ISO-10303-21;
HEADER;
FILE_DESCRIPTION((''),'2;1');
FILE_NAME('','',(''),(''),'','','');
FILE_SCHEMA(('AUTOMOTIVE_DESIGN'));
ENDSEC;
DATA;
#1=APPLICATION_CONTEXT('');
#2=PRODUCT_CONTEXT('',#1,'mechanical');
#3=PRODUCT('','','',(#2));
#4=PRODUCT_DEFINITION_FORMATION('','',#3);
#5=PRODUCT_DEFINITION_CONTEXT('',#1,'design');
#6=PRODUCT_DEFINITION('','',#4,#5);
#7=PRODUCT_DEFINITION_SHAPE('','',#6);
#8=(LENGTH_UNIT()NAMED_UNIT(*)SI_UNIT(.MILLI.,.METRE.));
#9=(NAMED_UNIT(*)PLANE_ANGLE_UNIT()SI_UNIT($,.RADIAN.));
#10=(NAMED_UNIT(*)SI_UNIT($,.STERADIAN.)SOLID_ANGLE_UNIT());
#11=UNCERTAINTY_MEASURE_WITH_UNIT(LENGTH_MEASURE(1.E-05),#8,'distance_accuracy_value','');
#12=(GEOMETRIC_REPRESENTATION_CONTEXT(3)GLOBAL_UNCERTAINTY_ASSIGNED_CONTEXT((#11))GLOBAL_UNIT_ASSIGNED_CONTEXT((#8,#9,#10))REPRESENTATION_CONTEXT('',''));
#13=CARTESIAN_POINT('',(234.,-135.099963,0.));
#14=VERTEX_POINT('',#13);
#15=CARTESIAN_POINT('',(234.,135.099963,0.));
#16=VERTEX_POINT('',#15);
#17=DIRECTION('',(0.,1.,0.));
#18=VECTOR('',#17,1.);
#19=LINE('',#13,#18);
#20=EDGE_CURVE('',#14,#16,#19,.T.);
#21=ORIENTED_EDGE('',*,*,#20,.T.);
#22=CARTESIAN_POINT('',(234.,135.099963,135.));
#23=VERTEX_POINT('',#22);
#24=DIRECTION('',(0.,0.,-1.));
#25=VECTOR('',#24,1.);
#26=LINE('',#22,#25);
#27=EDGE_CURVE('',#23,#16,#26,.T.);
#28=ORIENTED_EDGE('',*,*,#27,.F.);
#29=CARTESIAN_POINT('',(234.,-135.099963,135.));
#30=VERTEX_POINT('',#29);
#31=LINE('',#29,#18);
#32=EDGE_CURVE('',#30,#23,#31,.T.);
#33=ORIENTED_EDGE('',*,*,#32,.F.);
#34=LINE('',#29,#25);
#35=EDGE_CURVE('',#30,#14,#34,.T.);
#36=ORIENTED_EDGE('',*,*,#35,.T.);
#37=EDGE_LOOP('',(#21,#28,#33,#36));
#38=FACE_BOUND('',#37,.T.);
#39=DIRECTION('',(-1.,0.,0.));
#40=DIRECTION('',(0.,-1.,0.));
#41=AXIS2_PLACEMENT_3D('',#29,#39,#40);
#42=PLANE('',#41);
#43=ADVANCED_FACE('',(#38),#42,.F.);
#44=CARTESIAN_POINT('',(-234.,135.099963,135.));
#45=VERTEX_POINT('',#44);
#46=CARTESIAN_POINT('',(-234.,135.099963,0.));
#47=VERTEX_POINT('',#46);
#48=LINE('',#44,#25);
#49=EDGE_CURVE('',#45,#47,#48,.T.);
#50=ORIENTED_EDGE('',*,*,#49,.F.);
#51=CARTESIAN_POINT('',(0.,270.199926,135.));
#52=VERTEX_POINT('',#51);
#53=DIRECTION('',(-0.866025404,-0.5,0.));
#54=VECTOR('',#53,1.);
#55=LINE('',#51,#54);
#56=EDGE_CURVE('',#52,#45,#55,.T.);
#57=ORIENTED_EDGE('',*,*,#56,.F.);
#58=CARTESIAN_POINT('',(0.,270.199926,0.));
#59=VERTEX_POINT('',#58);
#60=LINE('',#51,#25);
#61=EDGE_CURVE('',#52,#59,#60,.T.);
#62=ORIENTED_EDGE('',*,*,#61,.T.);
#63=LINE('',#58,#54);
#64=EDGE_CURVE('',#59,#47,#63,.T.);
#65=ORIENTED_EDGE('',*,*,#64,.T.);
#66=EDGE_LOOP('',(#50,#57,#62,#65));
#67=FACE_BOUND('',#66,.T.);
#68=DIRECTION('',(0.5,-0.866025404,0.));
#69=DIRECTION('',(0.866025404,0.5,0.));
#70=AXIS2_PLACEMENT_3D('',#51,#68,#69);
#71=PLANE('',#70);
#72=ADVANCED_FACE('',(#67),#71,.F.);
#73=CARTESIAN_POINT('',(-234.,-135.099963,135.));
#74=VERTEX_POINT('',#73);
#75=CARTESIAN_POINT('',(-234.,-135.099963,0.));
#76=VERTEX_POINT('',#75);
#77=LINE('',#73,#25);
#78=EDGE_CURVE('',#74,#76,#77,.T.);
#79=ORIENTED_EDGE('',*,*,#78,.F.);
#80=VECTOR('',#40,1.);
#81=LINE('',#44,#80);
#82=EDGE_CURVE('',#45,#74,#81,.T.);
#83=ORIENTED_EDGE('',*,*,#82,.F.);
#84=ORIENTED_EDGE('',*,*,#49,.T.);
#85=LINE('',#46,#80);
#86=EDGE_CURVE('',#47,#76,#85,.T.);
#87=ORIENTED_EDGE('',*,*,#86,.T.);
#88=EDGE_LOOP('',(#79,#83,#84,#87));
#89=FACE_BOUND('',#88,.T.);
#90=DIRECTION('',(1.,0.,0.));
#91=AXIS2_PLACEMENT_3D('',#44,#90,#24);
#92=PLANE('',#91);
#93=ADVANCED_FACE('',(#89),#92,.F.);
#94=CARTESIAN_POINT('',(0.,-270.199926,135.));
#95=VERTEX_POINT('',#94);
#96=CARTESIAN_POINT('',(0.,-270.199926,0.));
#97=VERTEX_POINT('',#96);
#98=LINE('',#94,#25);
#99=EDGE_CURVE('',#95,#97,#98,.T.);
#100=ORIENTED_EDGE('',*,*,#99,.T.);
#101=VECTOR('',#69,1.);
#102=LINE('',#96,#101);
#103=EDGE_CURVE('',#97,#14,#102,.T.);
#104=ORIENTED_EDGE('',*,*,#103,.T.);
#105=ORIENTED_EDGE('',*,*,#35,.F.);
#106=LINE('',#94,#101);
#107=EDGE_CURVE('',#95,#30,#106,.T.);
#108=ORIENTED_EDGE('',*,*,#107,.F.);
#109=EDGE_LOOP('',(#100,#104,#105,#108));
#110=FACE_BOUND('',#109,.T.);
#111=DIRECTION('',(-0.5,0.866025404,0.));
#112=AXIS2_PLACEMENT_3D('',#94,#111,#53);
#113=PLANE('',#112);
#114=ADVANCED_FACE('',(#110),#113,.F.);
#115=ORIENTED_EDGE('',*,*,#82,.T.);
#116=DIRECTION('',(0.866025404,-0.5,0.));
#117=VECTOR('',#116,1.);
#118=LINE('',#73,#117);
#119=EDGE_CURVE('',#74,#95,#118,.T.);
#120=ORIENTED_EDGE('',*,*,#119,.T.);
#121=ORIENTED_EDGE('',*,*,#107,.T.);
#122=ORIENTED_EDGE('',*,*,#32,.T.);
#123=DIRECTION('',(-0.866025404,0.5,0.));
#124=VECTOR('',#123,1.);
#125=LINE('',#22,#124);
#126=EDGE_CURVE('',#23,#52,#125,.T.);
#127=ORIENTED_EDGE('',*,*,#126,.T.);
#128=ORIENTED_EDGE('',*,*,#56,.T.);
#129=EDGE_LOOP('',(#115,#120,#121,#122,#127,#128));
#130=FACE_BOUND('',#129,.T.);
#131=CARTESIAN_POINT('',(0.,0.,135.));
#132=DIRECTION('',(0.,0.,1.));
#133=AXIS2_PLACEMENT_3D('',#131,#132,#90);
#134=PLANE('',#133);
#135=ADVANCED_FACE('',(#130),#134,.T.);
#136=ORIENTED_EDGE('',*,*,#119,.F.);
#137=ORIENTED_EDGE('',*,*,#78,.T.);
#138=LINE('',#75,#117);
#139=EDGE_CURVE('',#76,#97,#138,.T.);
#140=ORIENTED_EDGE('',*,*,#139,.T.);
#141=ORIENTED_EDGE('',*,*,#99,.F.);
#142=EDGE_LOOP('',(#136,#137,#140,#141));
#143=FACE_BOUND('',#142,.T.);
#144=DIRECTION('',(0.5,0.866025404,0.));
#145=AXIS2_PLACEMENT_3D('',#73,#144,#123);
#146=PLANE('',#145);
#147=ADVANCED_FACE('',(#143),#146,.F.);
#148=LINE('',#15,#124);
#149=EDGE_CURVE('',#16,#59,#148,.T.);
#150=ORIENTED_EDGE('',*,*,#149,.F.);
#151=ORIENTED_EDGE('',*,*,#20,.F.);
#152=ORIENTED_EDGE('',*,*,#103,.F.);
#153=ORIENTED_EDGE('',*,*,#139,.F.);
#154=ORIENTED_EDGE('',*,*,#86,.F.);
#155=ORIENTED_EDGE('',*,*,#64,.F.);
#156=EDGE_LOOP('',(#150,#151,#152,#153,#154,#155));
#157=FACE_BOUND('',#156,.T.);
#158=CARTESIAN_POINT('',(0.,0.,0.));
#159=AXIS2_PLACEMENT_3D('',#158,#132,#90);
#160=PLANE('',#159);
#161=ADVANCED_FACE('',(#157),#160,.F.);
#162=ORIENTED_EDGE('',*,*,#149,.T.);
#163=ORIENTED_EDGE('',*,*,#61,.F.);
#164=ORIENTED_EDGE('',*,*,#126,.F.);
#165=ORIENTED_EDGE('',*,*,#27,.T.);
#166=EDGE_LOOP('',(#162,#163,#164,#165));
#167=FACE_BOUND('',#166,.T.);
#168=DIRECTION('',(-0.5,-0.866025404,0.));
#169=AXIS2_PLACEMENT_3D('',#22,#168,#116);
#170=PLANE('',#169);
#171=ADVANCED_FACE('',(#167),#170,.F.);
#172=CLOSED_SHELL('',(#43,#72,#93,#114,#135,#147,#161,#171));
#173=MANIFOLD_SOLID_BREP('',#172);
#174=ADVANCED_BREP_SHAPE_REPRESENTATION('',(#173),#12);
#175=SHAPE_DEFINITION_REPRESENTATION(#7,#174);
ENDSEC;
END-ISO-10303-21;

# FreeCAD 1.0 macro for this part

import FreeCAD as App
import Part
import Sketcher
Q = App.Units.Quantity


def add_polygon(sketch, points):
    """Adds a closed chain of lines whose ends are joined by coincident constraints."""
    first, n = sketch.GeometryCount, len(points)
    for a, b in zip(points, points[1:] + points[:1]):
        sketch.addGeometry(Part.LineSegment(App.Vector(*a, 0), App.Vector(*b, 0)), False)
    for i in range(n):
        sketch.addConstraint(Sketcher.Constraint("Coincident", first + i, 2, first + (i + 1) % n, 1))

doc = App.newDocument("Part")
body = doc.addObject("PartDesign::Body", "Body")

# Sketch on XY plane
sketch1 = doc.addObject("Sketcher::SketchObject", "Sketch")
body.addObject(sketch1)
sketch1.AttachmentSupport = (doc.XY_Plane, [""])
sketch1.MapMode = "FlatFace"
add_polygon(sketch1, [(0, -270), (234, -135), (234, 135), (0, 270), (-234, 135), (-234, -135)])  # lines 0-5
sketch1.addConstraint(Sketcher.Constraint("Vertical", 1))
sketch1.addConstraint(Sketcher.Constraint("Vertical", 4))
sketch1.addConstraint(Sketcher.Constraint("Symmetric", 0, 2, 3, 2, -1, 1))
sketch1.addConstraint(Sketcher.Constraint("Symmetric", 2, 2, 5, 2, -1, 1))
sketch1.addConstraint(Sketcher.Constraint("PointOnObject", 2, 2, -2))
sketch1.addConstraint(Sketcher.Constraint("Parallel", 2, 5))
sketch1.addConstraint(Sketcher.Constraint("Horizontal", 1, 2, 3, 2))
sketch1.addConstraint(Sketcher.Constraint("Angle", 0, Q("30 deg")))
sketch1.addConstraint(Sketcher.Constraint("DistanceX", -1, 1, 0, 2, Q("234 mm")))
sketch1.addConstraint(Sketcher.Constraint("DistanceY", 1, 1, 1, 2, Q("270.199926 mm")))
pad1 = doc.addObject("PartDesign::Pad", "Pad")
body.addObject(pad1)
pad1.Profile = sketch1
pad1.Length = 135

doc.recompute()
